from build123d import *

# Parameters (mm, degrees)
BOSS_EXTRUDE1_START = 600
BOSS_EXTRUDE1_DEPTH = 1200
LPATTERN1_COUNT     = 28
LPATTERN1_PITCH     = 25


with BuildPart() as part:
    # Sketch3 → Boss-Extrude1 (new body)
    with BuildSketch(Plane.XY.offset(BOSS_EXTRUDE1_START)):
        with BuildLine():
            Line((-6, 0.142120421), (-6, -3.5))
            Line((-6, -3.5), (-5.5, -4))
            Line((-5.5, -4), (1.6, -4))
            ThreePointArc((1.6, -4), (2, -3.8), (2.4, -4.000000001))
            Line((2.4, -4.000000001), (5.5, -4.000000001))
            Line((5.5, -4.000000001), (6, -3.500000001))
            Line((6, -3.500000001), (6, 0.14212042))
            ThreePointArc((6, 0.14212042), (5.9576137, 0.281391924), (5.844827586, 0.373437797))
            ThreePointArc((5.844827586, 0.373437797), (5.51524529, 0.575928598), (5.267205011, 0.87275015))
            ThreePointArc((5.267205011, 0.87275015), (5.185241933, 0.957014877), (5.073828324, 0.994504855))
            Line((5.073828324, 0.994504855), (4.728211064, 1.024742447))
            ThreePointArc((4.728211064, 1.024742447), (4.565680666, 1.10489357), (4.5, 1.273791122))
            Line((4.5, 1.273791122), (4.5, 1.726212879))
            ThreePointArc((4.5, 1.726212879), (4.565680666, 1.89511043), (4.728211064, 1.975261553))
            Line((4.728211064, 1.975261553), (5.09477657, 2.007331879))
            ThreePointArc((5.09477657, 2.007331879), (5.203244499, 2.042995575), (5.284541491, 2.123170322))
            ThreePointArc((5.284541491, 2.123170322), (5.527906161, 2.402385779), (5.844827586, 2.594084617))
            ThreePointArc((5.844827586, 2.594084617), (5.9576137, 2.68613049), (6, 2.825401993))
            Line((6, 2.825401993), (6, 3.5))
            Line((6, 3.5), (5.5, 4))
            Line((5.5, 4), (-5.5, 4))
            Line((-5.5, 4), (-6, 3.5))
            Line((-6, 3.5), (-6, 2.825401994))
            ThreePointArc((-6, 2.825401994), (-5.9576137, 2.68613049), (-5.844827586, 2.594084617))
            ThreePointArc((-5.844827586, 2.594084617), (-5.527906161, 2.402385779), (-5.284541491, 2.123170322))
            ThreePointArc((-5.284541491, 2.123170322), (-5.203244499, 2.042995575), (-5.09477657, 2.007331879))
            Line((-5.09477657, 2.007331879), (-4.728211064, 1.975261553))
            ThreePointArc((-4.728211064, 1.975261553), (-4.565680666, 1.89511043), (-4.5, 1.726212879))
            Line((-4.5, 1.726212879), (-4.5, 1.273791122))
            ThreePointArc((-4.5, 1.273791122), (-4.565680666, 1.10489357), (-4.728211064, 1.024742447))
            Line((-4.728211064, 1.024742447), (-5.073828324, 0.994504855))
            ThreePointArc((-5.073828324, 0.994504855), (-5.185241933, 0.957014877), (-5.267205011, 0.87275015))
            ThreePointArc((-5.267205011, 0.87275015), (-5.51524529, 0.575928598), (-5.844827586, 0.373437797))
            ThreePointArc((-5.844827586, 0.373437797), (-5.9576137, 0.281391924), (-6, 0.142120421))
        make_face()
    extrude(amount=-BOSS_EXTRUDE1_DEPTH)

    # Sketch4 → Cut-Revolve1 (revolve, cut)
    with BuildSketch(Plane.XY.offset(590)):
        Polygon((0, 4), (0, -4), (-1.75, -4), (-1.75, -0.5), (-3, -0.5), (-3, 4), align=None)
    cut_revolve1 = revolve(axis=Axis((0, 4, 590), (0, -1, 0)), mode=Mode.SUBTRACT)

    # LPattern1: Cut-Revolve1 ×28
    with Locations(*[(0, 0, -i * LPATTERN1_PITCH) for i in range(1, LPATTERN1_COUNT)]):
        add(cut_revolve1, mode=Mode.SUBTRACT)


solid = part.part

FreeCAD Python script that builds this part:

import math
import FreeCAD as App
import Part
import Sketcher
from FreeCAD import Vector
Q = App.Units.Quantity

doc = App.newDocument("Part")
body = doc.addObject("PartDesign::Body", "Body")

sketch1 = body.newObject("Sketcher::SketchObject", "Sketch")
sketch1.AttachmentSupport = (doc.getObject("XY_Plane"), [""])
sketch1.MapMode = "FlatFace"
sketch1.AttachmentOffset = App.Placement(Vector(0, 0, 600), App.Rotation())
sketch1.addGeometry([
    Part.LineSegment(Vector(-6, 0.14212, 0), Vector(-6, -3.5, 0)),
    Part.LineSegment(Vector(-6, -3.5, 0), Vector(-5.5, -4, 0)),
    Part.LineSegment(Vector(-5.5, -4, 0), Vector(1.6, -4, 0)),
    Part.ArcOfCircle(Part.Circle(Vector(2, -4.3, 0), Vector(0, 0, 1), 0.5), math.radians(36.869897), math.radians(143.130102)),
    Part.LineSegment(Vector(2.4, -4, 0), Vector(5.5, -4, 0)),
    Part.LineSegment(Vector(5.5, -4, 0), Vector(6, -3.5, 0)),
    Part.LineSegment(Vector(6, -3.5, 0), Vector(6, 0.14212, 0)),
    Part.ArcOfCircle(Part.Circle(Vector(5.75, 0.14212, 0), Vector(0, 0, 1), 0.25), math.radians(0), math.radians(67.70903)),
    Part.ArcOfCircle(Part.Circle(Vector(6.3, 1.483761, 0), Vector(0, 0, 1), 1.2), math.radians(-149.391049), math.radians(-112.29097)),
    Part.ArcOfCircle(Part.Circle(Vector(5.052039, 0.745456, 0), Vector(0, 0, 1), 0.25), math.radians(30.608951), math.radians(85)),
    Part.LineSegment(Vector(5.073828, 0.994505, 0), Vector(4.728211, 1.024742, 0)),
    Part.ArcOfCircle(Part.Circle(Vector(4.75, 1.273791, 0), Vector(0, 0, 1), 0.25), math.radians(-180), math.radians(-95)),
    Part.LineSegment(Vector(4.5, 1.273791, 0), Vector(4.5, 1.726213, 0)),
    Part.ArcOfCircle(Part.Circle(Vector(4.75, 1.726213, 0), Vector(0, 0, 1), 0.25), math.radians(95), math.radians(180)),
    Part.LineSegment(Vector(4.728211, 1.975262, 0), Vector(5.094777, 2.007332, 0)),
    Part.ArcOfCircle(Part.Circle(Vector(5.072988, 2.256381, 0), Vector(0, 0, 1), 0.25), math.radians(-85), math.radians(-32.197607)),
    Part.ArcOfCircle(Part.Circle(Vector(6.3, 1.483761, 0), Vector(0, 0, 1), 1.2), math.radians(112.29097), math.radians(147.802393)),
    Part.ArcOfCircle(Part.Circle(Vector(5.75, 2.825402, 0), Vector(0, 0, 1), 0.25), math.radians(-67.70903), math.radians(0)),
    Part.LineSegment(Vector(6, 2.825402, 0), Vector(6, 3.5, 0)),
    Part.LineSegment(Vector(6, 3.5, 0), Vector(5.5, 4, 0)),
    Part.LineSegment(Vector(5.5, 4, 0), Vector(-5.5, 4, 0)),
    Part.LineSegment(Vector(-5.5, 4, 0), Vector(-6, 3.5, 0)),
    Part.LineSegment(Vector(-6, 3.5, 0), Vector(-6, 2.825402, 0)),
    Part.ArcOfCircle(Part.Circle(Vector(-5.75, 2.825402, 0), Vector(0, 0, 1), 0.25), math.radians(180), math.radians(247.70903)),
    Part.ArcOfCircle(Part.Circle(Vector(-6.3, 1.483761, 0), Vector(0, 0, 1), 1.2), math.radians(32.197607), math.radians(67.70903)),
    Part.ArcOfCircle(Part.Circle(Vector(-5.072988, 2.256381, 0), Vector(0, 0, 1), 0.25), math.radians(-147.802393), math.radians(-95)),
    Part.LineSegment(Vector(-5.094777, 2.007332, 0), Vector(-4.728211, 1.975262, 0)),
    Part.ArcOfCircle(Part.Circle(Vector(-4.75, 1.726213, 0), Vector(0, 0, 1), 0.25), math.radians(0), math.radians(85)),
    Part.LineSegment(Vector(-4.5, 1.726213, 0), Vector(-4.5, 1.273791, 0)),
    Part.ArcOfCircle(Part.Circle(Vector(-4.75, 1.273791, 0), Vector(0, 0, 1), 0.25), math.radians(-85), math.radians(0)),
    Part.LineSegment(Vector(-4.728211, 1.024742, 0), Vector(-5.073828, 0.994505, 0)),
    Part.ArcOfCircle(Part.Circle(Vector(-5.052039, 0.745456, 0), Vector(0, 0, 1), 0.25), math.radians(95), math.radians(149.391049)),
    Part.ArcOfCircle(Part.Circle(Vector(-6.3, 1.483761, 0), Vector(0, 0, 1), 1.2), math.radians(-67.70903), math.radians(-30.608951)),
    Part.ArcOfCircle(Part.Circle(Vector(-5.75, 0.14212, 0), Vector(0, 0, 1), 0.25), math.radians(112.29097), math.radians(180)),
], False)
sketch1.addConstraint([
    Sketcher.Constraint("Coincident", 0, 2, 1, 1),
    Sketcher.Constraint("Coincident", 1, 2, 2, 1),
    Sketcher.Constraint("Coincident", 2, 2, 3, 2),
    Sketcher.Constraint("Coincident", 3, 1, 4, 1),
    Sketcher.Constraint("Coincident", 4, 2, 5, 1),
    Sketcher.Constraint("Coincident", 5, 2, 6, 1),
    Sketcher.Constraint("Tangent", 6, 2, 7, 1),
    Sketcher.Constraint("Tangent", 7, 2, 8, 2),
    Sketcher.Constraint("Tangent", 8, 1, 9, 1),
    Sketcher.Constraint("Tangent", 9, 2, 10, 1),
    Sketcher.Constraint("Tangent", 10, 2, 11, 2),
    Sketcher.Constraint("Tangent", 11, 1, 12, 1),
    Sketcher.Constraint("Tangent", 12, 2, 13, 2),
    Sketcher.Constraint("Tangent", 13, 1, 14, 1),
    Sketcher.Constraint("Tangent", 14, 2, 15, 1),
    Sketcher.Constraint("Tangent", 15, 2, 16, 2),
    Sketcher.Constraint("Tangent", 16, 1, 17, 1),
    Sketcher.Constraint("Tangent", 17, 2, 18, 1),
    Sketcher.Constraint("Coincident", 18, 2, 19, 1),
    Sketcher.Constraint("Coincident", 19, 2, 20, 1),
    Sketcher.Constraint("Coincident", 20, 2, 21, 1),
    Sketcher.Constraint("Coincident", 21, 2, 22, 1),
    Sketcher.Constraint("Tangent", 22, 2, 23, 1),
    Sketcher.Constraint("Tangent", 23, 2, 24, 2),
    Sketcher.Constraint("Tangent", 24, 1, 25, 1),
    Sketcher.Constraint("Tangent", 25, 2, 26, 1),
    Sketcher.Constraint("Tangent", 26, 2, 27, 2),
    Sketcher.Constraint("Tangent", 27, 1, 28, 1),
    Sketcher.Constraint("Tangent", 28, 2, 29, 2),
    Sketcher.Constraint("Tangent", 29, 1, 30, 1),
    Sketcher.Constraint("Tangent", 30, 2, 31, 1),
    Sketcher.Constraint("Tangent", 31, 2, 32, 2),
    Sketcher.Constraint("Tangent", 32, 1, 33, 1),
    Sketcher.Constraint("Tangent", 33, 2, 0, 1),
    Sketcher.Constraint("Vertical", 0),
    Sketcher.Constraint("Horizontal", 2),
    Sketcher.Constraint("Horizontal", 4),
    Sketcher.Constraint("Vertical", 6),
    Sketcher.Constraint("Vertical", 12),
    Sketcher.Constraint("Vertical", 18),
    Sketcher.Constraint("Horizontal", 20),
    Sketcher.Constraint("Vertical", 22),
    Sketcher.Constraint("Vertical", 28),
    Sketcher.Constraint("Coincident", 16, 3, 8, 3),
    Sketcher.Constraint("Coincident", 32, 3, 24, 3),
    Sketcher.Constraint("Equal", 7, 9),
    Sketcher.Constraint("Equal", 9, 11),
    Sketcher.Constraint("Equal", 11, 13),
    Sketcher.Constraint("Equal", 13, 15),
    Sketcher.Constraint("Equal", 8, 16),
    Sketcher.Constraint("Equal", 15, 17),
    Sketcher.Constraint("Equal", 17, 23),
    Sketcher.Constraint("Equal", 16, 24),
    Sketcher.Constraint("Equal", 23, 25),
    Sketcher.Constraint("Equal", 25, 27),
    Sketcher.Constraint("Equal", 27, 29),
    Sketcher.Constraint("Equal", 29, 31),
    Sketcher.Constraint("Equal", 24, 32),
    Sketcher.Constraint("Equal", 31, 33),
    Sketcher.Constraint("Symmetric", 0, 2, 18, 2, -1, 1),
    Sketcher.Constraint("Symmetric", 1, 2, 19, 2, -1, 1),
    Sketcher.Constraint("Symmetric", 4, 2, 20, 2, -1, 1),
    Sketcher.Constraint("Symmetric", 5, 2, 21, 2, -1, 1),
    Sketcher.Constraint("Symmetric", 17, 3, 23, 3, -2),
    Sketcher.Constraint("Symmetric", 15, 3, 25, 3, -2),
    Sketcher.Constraint("Symmetric", 13, 3, 27, 3, -2),
    Sketcher.Constraint("Symmetric", 10, 2, 29, 1, -2),
    Sketcher.Constraint("Perpendicular", 1, 5),
    Sketcher.Constraint("Parallel", 10, 26),
    Sketcher.Constraint("Horizontal", 0, 2, 5, 2),
    Sketcher.Constraint("Vertical", 4, 2, 19, 2),
    Sketcher.Constraint("Radius", 3, 0.5),
    Sketcher.Constraint("Radius", 8, 1.2),
    Sketcher.Constraint("DistanceX", 20, 2, 20, 1, 11.0),
    Sketcher.Constraint("Angle", 10, Q("175 deg")),
    Sketcher.Constraint("Radius", 7, 0.25),
    Sketcher.Constraint("DistanceX", 2, 1, 2, 2, 7.1),
    Sketcher.Constraint("DistanceX", 4, 1, 4, 2, 3.1),
    Sketcher.Constraint("DistanceX", 0, 2, -1, 1, 6.0),
    Sketcher.Constraint("DistanceY", 1, 2, -1, 1, 4.0),
    Sketcher.Constraint("DistanceX", 11, 3, 7, 3, 1.0),
    Sketcher.Constraint("DistanceX", -1, 1, 8, 3, 6.3),
    Sketcher.Constraint("DistanceY", 18, 1, 18, 2, 0.674598),
    Sketcher.Constraint("DistanceX", 9, 2, 7, 2, 0.770999),
    Sketcher.Constraint("DistanceY", 12, 1, 12, 2, 0.452422),
])
pad1 = body.newObject("PartDesign::Pad", "Pad")
pad1.Profile = sketch1
pad1.Length = 1200
pad1.Reversed = True

sketch2 = body.newObject("Sketcher::SketchObject", "Sketch001")
sketch2.AttachmentSupport = (doc.getObject("XY_Plane"), [""])
sketch2.MapMode = "FlatFace"
sketch2.AttachmentOffset = App.Placement(Vector(0, 0, 590), App.Rotation())
sketch2.addGeometry([
    Part.LineSegment(Vector(0, -4, 0), Vector(0, 4, 0)),
    Part.LineSegment(Vector(0, 4, 0), Vector(-3, 4, 0)),
    Part.LineSegment(Vector(-3, 4, 0), Vector(-3, -0.5, 0)),
    Part.LineSegment(Vector(-3, -0.5, 0), Vector(-1.75, -0.5, 0)),
    Part.LineSegment(Vector(-1.75, -0.5, 0), Vector(-1.75, -4, 0)),
    Part.LineSegment(Vector(-1.75, -4, 0), Vector(0, -4, 0)),
], False)
sketch2.addConstraint([
    Sketcher.Constraint("Coincident", 0, 2, 1, 1),
    Sketcher.Constraint("Coincident", 1, 2, 2, 1),
    Sketcher.Constraint("Coincident", 2, 2, 3, 1),
    Sketcher.Constraint("Coincident", 3, 2, 4, 1),
    Sketcher.Constraint("Coincident", 4, 2, 5, 1),
    Sketcher.Constraint("Coincident", 5, 2, 0, 1),
    Sketcher.Constraint("Vertical", 0),
    Sketcher.Constraint("Horizontal", 1),
    Sketcher.Constraint("Vertical", 2),
    Sketcher.Constraint("Horizontal", 3),
    Sketcher.Constraint("Vertical", 4),
    Sketcher.Constraint("Horizontal", 5),
    Sketcher.Constraint("Symmetric", 0, 2, 5, 2, -1, 1),
    Sketcher.Constraint("DistanceX", 1, 2, 1, 1, 3.0),
    Sketcher.Constraint("DistanceY", 0, 1, 0, 2, 8.0),
    Sketcher.Constraint("DistanceY", 2, 2, 2, 1, 4.5),
    Sketcher.Constraint("DistanceX", 3, 1, 3, 2, 1.25),
])
groove = body.newObject("PartDesign::Groove", "Groove")
groove.Profile = sketch2
groove.ReferenceAxis = (sketch2, ["V_Axis"])
groove.Angle = 360
doc.recompute()

linearpattern = body.newObject("PartDesign::LinearPattern", "LinearPattern")
linearpattern.Originals = [groove]
linearpattern.Direction = (doc.getObject("Z_Axis"), [""])
linearpattern.Mode = "offset"
linearpattern.Offset = 25
linearpattern.Occurrences = 28
linearpattern.Reversed = True
body.Tip = linearpattern

doc.recompute()
